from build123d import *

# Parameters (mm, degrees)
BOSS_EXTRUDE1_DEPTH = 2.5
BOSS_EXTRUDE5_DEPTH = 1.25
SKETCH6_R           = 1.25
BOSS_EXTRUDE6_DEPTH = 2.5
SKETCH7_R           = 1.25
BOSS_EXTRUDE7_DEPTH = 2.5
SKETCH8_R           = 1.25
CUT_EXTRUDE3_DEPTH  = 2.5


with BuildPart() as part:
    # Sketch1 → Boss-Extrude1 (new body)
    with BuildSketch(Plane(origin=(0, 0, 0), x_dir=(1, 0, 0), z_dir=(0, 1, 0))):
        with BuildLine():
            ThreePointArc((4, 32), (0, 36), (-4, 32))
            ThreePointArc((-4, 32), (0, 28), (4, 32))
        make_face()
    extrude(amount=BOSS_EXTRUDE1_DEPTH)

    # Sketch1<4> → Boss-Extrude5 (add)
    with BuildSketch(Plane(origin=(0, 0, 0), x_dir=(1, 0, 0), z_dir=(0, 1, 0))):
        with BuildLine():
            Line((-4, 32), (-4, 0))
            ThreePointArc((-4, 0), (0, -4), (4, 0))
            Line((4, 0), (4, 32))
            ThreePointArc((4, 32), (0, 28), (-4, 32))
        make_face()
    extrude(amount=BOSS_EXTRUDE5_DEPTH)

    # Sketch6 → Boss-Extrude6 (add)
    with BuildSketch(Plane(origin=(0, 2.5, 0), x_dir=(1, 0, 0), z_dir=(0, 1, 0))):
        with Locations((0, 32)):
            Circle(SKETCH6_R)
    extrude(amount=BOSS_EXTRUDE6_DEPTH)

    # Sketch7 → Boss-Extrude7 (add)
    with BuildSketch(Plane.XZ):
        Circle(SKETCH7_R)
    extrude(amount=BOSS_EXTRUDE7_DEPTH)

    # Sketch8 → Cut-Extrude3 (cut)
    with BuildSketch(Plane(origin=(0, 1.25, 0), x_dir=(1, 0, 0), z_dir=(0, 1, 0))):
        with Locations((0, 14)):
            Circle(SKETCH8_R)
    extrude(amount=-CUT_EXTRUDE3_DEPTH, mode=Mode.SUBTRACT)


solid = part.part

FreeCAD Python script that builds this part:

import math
import FreeCAD as App
import Part
import Sketcher
from FreeCAD import Vector
Q = App.Units.Quantity

doc = App.newDocument("Part")
body = doc.addObject("PartDesign::Body", "Body")

# Sketch on XZ plane
sketch1 = body.newObject("Sketcher::SketchObject", "Sketch")
sketch1.AttachmentSupport = (doc.getObject("XZ_Plane"), [""])
sketch1.MapMode = "FlatFace"
sketch1.addGeometry(Part.Circle(Vector(0, -32, 0), Vector(0, 0, 1), 4), False)
sketch1.addConstraint([
    Sketcher.Constraint("PointOnObject", 0, 3, -2),
    Sketcher.Constraint("Diameter", 0, Q("8 mm")),
    Sketcher.Constraint("DistanceY", 0, 3, -1, 1, Q("32 mm")),
])
pad1 = body.newObject("PartDesign::Pad", "Pad")
pad1.Profile = sketch1
pad1.Length = 2.5
pad1.Reversed = True

# Sketch on XZ plane
sketch2 = body.newObject("Sketcher::SketchObject", "Sketch001")
sketch2.AttachmentSupport = (doc.getObject("XZ_Plane"), [""])
sketch2.MapMode = "FlatFace"
sketch2.addGeometry([
    Part.LineSegment(Vector(-4, -32, 0), Vector(-4, 0, 0)),
    Part.ArcOfCircle(Part.Circle(Vector(0, 0, 0), Vector(0, 0, 1), 4), math.radians(0), math.radians(180)),
    Part.LineSegment(Vector(4, 0, 0), Vector(4, -32, 0)),
    Part.ArcOfCircle(Part.Circle(Vector(0, -32, 0), Vector(0, 0, 1), 4), math.radians(0), math.radians(180)),
], False)
sketch2.addConstraint([
    Sketcher.Constraint("Tangent", 0, 2, 1, 2),
    Sketcher.Constraint("Tangent", 1, 1, 2, 1),
    Sketcher.Constraint("Tangent", 2, 2, 3, 1),
    Sketcher.Constraint("Tangent", 3, 2, 0, 1),
    Sketcher.Constraint("Vertical", 0),
    Sketcher.Constraint("Vertical", 2),
    Sketcher.Constraint("Coincident", 1, 3, -1, 1),
    Sketcher.Constraint("Radius", 1, Q("4 mm")),
    Sketcher.Constraint("DistanceY", 0, 1, 0, 2, Q("32 mm")),
])
pad2 = body.newObject("PartDesign::Pad", "Pad001")
pad2.Profile = sketch2
pad2.Length = 1.25
pad2.Reversed = True

# Sketch on XZ plane
sketch3 = body.newObject("Sketcher::SketchObject", "Sketch002")
sketch3.AttachmentSupport = (doc.getObject("XZ_Plane"), [""])
sketch3.MapMode = "FlatFace"
sketch3.AttachmentOffset = App.Placement(Vector(0, 0, -2.5), App.Rotation())
sketch3.addGeometry(Part.Circle(Vector(0, -32, 0), Vector(0, 0, 1), 1.25), False)
sketch3.addConstraint([
    Sketcher.Constraint("PointOnObject", 0, 3, -2),
    Sketcher.Constraint("Diameter", 0, Q("2.5 mm")),
    Sketcher.Constraint("DistanceY", 0, 3, -1, 1, Q("32 mm")),
])
pad3 = body.newObject("PartDesign::Pad", "Pad002")
pad3.Profile = sketch3
pad3.Length = 2.5
pad3.Reversed = True

# Sketch on XZ plane
sketch4 = body.newObject("Sketcher::SketchObject", "Sketch003")
sketch4.AttachmentSupport = (doc.getObject("XZ_Plane"), [""])
sketch4.MapMode = "FlatFace"
sketch4.addGeometry(Part.Circle(Vector(0, 0, 0), Vector(0, 0, 1), 1.25), False)
sketch4.addConstraint([
    Sketcher.Constraint("Coincident", 0, 3, -1, 1),
    Sketcher.Constraint("Diameter", 0, Q("2.5 mm")),
])
pad4 = body.newObject("PartDesign::Pad", "Pad003")
pad4.Profile = sketch4
pad4.Length = 2.5

# Sketch on XZ plane
sketch5 = body.newObject("Sketcher::SketchObject", "Sketch004")
sketch5.AttachmentSupport = (doc.getObject("XZ_Plane"), [""])
sketch5.MapMode = "FlatFace"
sketch5.AttachmentOffset = App.Placement(Vector(0, 0, -1.25), App.Rotation())
sketch5.addGeometry(Part.Circle(Vector(0, -14, 0), Vector(0, 0, 1), 1.25), False)
sketch5.addConstraint([
    Sketcher.Constraint("PointOnObject", 0, 3, -2),
    Sketcher.Constraint("Diameter", 0, Q("2.5 mm")),
    Sketcher.Constraint("DistanceY", 0, 3, -1, 1, Q("14 mm")),
])
pocket1 = body.newObject("PartDesign::Pocket", "Pocket")
pocket1.Profile = sketch5
pocket1.Length = 2.5
pocket1.Reversed = True

doc.recompute()
